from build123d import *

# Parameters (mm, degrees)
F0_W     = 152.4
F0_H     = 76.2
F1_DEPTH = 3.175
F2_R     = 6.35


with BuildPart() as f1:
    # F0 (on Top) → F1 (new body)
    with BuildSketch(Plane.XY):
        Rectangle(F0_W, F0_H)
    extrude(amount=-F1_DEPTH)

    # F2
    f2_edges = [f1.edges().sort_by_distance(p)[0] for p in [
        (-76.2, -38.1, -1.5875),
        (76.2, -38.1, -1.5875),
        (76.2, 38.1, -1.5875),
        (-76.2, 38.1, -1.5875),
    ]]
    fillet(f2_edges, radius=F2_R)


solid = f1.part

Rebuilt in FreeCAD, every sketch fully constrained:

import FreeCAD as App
import Part
import Sketcher
Q = App.Units.Quantity


def edges_at(feature, points):
    """Names of the edges that pass closest to the given points."""
    edges = feature.Shape.Edges
    near = lambda p: min(range(len(edges)), key=lambda i: edges[i].distToShape(Part.Vertex(*p))[0])
    return sorted({f"Edge{near(p) + 1}" for p in points})


def add_polygon(sketch, points):
    """Adds a closed chain of lines whose ends are joined by coincident constraints."""
    first, n = sketch.GeometryCount, len(points)
    for a, b in zip(points, points[1:] + points[:1]):
        sketch.addGeometry(Part.LineSegment(App.Vector(*a, 0), App.Vector(*b, 0)), False)
    for i in range(n):
        sketch.addConstraint(Sketcher.Constraint("Coincident", first + i, 2, first + (i + 1) % n, 1))

doc = App.newDocument("Part")
body = doc.addObject("PartDesign::Body", "Body")

sketch1 = doc.addObject("Sketcher::SketchObject", "Sketch")
body.addObject(sketch1)
sketch1.AttachmentSupport = (doc.XY_Plane, [""])
sketch1.MapMode = "FlatFace"
add_polygon(sketch1, [(-76.2, 38.1), (-76.2, -38.1), (76.2, -38.1), (76.2, 38.1)])
sketch1.addConstraint([
    Sketcher.Constraint("Vertical", 0),
    Sketcher.Constraint("Horizontal", 1),
    Sketcher.Constraint("Vertical", 2),
    Sketcher.Constraint("Horizontal", 3),
    Sketcher.Constraint("Symmetric", 0, 2, 2, 2, -1, 1),
    Sketcher.Constraint("DistanceX", 1, 1, 1, 2, Q("6 in")),
    Sketcher.Constraint("DistanceY", 0, 2, 0, 1, Q("3 in")),
])
pad1 = doc.addObject("PartDesign::Pad", "Pad")
body.addObject(pad1)
pad1.Profile = sketch1
pad1.Length = Q("0.125 in")
pad1.Reversed = True
doc.recompute()

fillet = doc.addObject("PartDesign::Fillet", "Fillet")
body.addObject(fillet)
fillet.Base = (pad1, edges_at(pad1, [
    (-76.2, -38.1, -1.587),
    (76.2, -38.1, -1.587),
    (76.2, 38.1, -1.587),
    (-76.2, 38.1, -1.587),
]))
fillet.Radius = Q("0.25 in")

doc.recompute()
